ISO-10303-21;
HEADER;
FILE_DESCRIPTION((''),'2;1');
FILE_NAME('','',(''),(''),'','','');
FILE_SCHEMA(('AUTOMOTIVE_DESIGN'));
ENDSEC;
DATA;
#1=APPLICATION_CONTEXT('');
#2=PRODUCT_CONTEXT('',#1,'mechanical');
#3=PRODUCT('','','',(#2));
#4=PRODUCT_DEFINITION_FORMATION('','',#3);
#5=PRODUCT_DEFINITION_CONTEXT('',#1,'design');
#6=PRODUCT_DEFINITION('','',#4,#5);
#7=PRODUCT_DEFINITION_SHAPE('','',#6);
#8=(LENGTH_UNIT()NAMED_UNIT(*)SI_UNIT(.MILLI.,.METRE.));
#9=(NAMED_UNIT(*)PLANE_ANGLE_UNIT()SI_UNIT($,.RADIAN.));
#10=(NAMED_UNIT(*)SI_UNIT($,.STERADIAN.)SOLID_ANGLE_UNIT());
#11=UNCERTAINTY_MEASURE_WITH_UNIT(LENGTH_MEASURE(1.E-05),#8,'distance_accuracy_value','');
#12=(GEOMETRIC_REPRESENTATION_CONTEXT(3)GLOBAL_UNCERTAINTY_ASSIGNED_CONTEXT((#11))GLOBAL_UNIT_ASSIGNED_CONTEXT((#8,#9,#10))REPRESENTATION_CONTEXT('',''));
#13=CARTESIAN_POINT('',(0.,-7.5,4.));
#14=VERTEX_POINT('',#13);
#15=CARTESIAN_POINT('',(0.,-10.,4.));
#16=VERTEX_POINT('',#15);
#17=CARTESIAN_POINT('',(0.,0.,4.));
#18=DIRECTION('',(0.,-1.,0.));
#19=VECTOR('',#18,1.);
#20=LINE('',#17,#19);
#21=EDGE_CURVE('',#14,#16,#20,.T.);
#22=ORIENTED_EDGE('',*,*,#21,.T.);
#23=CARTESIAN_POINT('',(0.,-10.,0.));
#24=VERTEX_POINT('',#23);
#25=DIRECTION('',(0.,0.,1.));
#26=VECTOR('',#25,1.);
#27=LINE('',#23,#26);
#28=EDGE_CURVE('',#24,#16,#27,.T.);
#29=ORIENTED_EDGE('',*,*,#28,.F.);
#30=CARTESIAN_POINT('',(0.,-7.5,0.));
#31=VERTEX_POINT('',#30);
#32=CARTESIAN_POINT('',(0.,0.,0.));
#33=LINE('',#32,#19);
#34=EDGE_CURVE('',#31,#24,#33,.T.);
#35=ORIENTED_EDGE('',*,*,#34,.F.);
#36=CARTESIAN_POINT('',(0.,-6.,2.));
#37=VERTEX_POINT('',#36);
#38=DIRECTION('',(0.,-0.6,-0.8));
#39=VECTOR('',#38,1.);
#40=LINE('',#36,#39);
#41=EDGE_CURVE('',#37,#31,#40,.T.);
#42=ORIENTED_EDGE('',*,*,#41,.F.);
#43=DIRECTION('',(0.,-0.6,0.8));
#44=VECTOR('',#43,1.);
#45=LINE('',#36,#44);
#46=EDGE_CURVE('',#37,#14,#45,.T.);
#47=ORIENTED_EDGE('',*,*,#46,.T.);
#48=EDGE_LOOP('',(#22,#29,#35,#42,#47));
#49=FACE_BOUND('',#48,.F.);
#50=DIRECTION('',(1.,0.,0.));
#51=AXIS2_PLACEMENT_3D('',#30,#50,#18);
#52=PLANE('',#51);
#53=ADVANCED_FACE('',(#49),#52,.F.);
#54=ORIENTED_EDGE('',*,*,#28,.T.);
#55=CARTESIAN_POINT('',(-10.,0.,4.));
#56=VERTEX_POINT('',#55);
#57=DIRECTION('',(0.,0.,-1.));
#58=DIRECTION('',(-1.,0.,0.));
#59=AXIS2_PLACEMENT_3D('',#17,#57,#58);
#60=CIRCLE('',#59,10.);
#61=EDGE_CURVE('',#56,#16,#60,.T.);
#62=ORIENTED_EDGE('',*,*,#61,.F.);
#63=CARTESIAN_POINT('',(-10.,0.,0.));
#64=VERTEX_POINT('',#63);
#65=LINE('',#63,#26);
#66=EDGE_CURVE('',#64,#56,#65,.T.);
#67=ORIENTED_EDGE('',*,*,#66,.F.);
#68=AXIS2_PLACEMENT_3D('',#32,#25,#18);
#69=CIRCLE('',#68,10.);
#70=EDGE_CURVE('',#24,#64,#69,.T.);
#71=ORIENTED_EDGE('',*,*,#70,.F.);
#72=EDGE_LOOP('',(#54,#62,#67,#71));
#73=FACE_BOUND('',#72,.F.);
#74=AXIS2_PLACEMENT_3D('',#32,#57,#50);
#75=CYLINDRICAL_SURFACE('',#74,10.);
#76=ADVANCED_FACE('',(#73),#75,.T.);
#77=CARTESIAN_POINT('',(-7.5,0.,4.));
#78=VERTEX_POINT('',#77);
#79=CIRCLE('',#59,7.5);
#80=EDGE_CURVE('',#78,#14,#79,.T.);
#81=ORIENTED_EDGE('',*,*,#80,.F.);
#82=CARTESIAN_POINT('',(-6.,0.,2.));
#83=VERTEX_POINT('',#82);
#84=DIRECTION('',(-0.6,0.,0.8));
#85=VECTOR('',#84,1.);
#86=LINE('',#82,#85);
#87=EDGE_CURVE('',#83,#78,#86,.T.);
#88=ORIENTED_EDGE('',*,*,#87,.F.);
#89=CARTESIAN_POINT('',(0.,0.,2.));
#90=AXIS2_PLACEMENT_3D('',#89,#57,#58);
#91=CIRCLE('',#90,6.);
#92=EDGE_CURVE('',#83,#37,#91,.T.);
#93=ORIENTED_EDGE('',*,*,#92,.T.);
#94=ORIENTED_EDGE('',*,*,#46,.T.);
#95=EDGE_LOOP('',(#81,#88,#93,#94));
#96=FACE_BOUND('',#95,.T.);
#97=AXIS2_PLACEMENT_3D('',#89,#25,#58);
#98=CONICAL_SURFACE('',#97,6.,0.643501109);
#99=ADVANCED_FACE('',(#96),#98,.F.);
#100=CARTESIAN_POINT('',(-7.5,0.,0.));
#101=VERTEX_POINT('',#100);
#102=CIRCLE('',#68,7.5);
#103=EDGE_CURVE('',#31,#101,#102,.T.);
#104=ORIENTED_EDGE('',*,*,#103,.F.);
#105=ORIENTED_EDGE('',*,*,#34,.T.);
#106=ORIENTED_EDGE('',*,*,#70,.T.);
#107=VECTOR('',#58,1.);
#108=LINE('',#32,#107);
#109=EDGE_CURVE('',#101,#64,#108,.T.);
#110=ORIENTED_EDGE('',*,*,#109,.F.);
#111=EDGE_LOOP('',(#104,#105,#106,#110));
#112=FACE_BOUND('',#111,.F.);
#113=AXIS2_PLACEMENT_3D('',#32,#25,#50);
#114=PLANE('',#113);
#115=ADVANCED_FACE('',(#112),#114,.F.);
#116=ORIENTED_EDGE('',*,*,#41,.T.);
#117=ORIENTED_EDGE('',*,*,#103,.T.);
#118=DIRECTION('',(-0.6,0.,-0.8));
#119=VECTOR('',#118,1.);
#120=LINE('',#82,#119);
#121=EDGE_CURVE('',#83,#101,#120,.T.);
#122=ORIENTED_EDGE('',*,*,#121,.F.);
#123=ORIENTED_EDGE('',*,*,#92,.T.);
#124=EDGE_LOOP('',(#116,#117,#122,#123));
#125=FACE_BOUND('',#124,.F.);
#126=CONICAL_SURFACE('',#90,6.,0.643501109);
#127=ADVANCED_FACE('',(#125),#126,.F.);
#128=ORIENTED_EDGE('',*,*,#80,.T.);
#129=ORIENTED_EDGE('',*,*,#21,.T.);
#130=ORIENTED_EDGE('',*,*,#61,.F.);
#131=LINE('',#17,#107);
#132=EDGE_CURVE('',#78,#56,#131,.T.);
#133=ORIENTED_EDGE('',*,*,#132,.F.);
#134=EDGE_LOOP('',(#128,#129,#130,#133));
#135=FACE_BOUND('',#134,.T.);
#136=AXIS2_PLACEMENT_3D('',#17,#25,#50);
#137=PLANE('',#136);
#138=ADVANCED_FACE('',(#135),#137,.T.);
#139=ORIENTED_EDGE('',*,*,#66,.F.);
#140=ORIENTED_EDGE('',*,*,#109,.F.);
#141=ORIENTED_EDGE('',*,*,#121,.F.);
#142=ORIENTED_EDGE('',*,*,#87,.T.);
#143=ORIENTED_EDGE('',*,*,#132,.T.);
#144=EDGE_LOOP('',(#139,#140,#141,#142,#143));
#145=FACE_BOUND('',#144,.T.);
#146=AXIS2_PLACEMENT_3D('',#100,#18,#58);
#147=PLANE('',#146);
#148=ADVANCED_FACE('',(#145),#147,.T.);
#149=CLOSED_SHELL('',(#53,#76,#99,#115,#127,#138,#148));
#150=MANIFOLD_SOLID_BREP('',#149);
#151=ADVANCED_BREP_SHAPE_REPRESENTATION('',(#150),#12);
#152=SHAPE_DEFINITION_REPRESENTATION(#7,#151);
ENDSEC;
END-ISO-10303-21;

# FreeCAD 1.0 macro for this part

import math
import FreeCAD as App
import Part
import Sketcher
from FreeCAD import Vector
Q = App.Units.Quantity

doc = App.newDocument("Part")
body = doc.addObject("PartDesign::Body", "Body")

sketch1 = doc.addObject("Sketcher::SketchObject", "Sketch")
body.addObject(sketch1)
sketch1.AttachmentSupport = (doc.XY_Plane, [""])
sketch1.MapMode = "FlatFace"
sketch1.addGeometry([
    Part.ArcOfCircle(Part.Circle(Vector(0, 0, 0), Vector(0, 0, 1), 7.5), math.radians(-90), math.radians(180)),
    Part.LineSegment(Vector(0, -7.5, 0), Vector(0, -10, 0)),
    Part.ArcOfCircle(Part.Circle(Vector(0, 0, 0), Vector(0, 0, 1), 10), math.radians(-90), math.radians(180)),
    Part.LineSegment(Vector(-10, 0, 0), Vector(-7.5, 0, 0)),
], False)
sketch1.addConstraint([
    Sketcher.Constraint("Coincident", 0, 1, 1, 1),
    Sketcher.Constraint("Coincident", 1, 2, 2, 1),
    Sketcher.Constraint("Coincident", 2, 2, 3, 1),
    Sketcher.Constraint("Coincident", 3, 2, 0, 2),
    Sketcher.Constraint("Vertical", 1),
    Sketcher.Constraint("Horizontal", 3),
    Sketcher.Constraint("Coincident", 0, 3, -1, 1),
    Sketcher.Constraint("Coincident", 2, 3, -1, 1),
    Sketcher.Constraint("PointOnObject", 0, 1, -2),
    Sketcher.Constraint("PointOnObject", 2, 2, -1),
    Sketcher.Constraint("Radius", 2, Q("10 mm")),
    Sketcher.Constraint("Radius", 0, Q("7.5 mm")),
])
pad1 = doc.addObject("PartDesign::Pad", "Pad")
body.addObject(pad1)
pad1.Profile = sketch1
pad1.Length = 4

sketch2 = doc.addObject("Sketcher::SketchObject", "Sketch001")
body.addObject(sketch2)
sketch2.AttachmentSupport = (doc.XZ_Plane, [""])
sketch2.MapMode = "FlatFace"
sketch2.addGeometry([
    Part.LineSegment(Vector(-7.5, 0, 0), Vector(-6, 2, 0)),
    Part.LineSegment(Vector(-6, 2, 0), Vector(-7.5, 4, 0)),
    Part.LineSegment(Vector(-7.5, 4, 0), Vector(-7.5, 0, 0)),
], False)
sketch2.addConstraint([
    Sketcher.Constraint("Coincident", 0, 2, 1, 1),
    Sketcher.Constraint("Coincident", 1, 2, 2, 1),
    Sketcher.Constraint("Coincident", 2, 2, 0, 1),
    Sketcher.Constraint("Vertical", 2),
    Sketcher.Constraint("PointOnObject", 2, 2, -1),
    Sketcher.Constraint("Equal", 0, 1),
    Sketcher.Constraint("DistanceX", 1, 2, 0, 2, Q("1.5 mm")),
    Sketcher.Constraint("DistanceY", 2, 2, 2, 1, Q("4 mm")),
    Sketcher.Constraint("DistanceX", 0, 2, -1, 1, Q("6 mm")),
])
revolution = doc.addObject("PartDesign::Revolution", "Revolution")
body.addObject(revolution)
revolution.Profile = sketch2
revolution.ReferenceAxis = (sketch2, ["V_Axis"])
revolution.Angle = 270
revolution.Reversed = True

doc.recompute()
